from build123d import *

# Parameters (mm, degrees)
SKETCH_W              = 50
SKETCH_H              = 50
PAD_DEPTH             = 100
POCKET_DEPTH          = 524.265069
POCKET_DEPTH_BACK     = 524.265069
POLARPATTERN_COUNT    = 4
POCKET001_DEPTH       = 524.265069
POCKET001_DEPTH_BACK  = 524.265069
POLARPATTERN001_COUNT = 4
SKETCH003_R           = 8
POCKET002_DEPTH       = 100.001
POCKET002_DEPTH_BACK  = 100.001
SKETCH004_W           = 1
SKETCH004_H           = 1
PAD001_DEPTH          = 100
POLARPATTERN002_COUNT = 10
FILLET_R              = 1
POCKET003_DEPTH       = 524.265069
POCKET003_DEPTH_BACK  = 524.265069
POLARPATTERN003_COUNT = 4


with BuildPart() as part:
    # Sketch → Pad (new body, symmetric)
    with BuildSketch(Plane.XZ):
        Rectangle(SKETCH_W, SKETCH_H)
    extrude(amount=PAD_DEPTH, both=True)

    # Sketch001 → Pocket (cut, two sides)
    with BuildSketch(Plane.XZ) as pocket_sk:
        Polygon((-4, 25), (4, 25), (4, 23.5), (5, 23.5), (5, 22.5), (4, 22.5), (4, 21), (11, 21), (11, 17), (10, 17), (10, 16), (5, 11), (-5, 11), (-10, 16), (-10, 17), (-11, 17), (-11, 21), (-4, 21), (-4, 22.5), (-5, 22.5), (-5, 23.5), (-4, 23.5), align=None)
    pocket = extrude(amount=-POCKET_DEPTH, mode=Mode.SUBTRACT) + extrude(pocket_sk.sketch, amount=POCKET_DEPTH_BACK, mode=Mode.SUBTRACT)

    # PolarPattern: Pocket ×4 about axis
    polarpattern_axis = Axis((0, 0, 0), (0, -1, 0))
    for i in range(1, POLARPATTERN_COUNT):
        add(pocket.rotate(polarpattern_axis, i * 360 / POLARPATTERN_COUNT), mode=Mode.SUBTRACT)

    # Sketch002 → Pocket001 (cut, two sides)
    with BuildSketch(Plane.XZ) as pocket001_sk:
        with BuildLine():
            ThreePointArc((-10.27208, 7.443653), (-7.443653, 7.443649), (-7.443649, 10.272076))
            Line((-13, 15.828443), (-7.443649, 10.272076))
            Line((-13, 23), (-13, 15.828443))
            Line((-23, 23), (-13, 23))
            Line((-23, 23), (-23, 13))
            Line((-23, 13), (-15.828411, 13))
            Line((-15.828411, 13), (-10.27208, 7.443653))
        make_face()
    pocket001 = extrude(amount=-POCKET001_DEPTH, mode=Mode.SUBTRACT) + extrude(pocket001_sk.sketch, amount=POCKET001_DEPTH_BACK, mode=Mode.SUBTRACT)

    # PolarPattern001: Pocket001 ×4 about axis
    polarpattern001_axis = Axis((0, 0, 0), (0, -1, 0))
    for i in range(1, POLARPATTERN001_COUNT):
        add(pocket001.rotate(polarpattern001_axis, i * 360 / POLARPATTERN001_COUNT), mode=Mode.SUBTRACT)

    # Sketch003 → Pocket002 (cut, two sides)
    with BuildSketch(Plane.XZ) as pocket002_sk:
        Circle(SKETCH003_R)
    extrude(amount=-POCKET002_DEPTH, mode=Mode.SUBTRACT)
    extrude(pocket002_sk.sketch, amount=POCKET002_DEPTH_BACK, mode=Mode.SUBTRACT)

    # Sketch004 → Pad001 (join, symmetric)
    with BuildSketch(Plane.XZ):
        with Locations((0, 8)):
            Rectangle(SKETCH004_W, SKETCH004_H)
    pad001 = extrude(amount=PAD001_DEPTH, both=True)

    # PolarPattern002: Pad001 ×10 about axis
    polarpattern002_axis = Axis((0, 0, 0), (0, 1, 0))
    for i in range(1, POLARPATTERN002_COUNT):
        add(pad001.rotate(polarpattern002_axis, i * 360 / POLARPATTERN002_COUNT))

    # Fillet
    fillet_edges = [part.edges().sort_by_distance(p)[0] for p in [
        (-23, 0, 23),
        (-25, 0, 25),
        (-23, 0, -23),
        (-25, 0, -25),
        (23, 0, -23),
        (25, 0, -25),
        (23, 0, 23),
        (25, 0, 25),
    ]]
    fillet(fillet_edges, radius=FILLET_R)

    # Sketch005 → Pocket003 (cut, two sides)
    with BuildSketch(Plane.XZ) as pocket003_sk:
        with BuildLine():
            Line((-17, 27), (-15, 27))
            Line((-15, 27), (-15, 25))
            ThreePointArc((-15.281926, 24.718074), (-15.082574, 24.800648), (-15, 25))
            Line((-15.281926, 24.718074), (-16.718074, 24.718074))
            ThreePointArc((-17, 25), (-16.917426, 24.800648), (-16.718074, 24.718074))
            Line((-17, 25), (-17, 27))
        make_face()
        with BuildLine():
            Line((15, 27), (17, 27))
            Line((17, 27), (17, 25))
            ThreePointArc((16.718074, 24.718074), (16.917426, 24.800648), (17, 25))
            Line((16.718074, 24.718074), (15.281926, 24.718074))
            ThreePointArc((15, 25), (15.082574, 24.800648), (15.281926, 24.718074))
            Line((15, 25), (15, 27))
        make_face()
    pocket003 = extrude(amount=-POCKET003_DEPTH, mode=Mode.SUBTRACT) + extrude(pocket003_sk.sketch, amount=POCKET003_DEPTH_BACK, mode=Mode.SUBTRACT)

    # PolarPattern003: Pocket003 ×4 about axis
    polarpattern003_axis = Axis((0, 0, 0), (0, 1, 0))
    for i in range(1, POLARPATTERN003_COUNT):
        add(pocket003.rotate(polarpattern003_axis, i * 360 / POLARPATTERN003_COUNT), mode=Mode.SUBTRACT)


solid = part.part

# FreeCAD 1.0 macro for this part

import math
import FreeCAD as App
import Part
import Sketcher


def edges_at(feature, points):
    """Names of the edges that pass closest to the given points."""
    edges = feature.Shape.Edges
    near = lambda p: min(range(len(edges)), key=lambda i: edges[i].distToShape(Part.Vertex(*p))[0])
    return sorted({f"Edge{near(p) + 1}" for p in points})

doc = App.newDocument("Part")
body = doc.addObject("PartDesign::Body", "Body")

# Sketch on XZ plane
sketch1 = body.newObject("Sketcher::SketchObject", "Sketch")
sketch1.AttachmentSupport = (doc.getObject("XZ_Plane"), [""])
sketch1.MapMode = "FlatFace"
sketch1.addGeometry([
    Part.LineSegment(App.Vector(-25, 25, 0), App.Vector(-25, -25, 0)),
    Part.LineSegment(App.Vector(-25, -25, 0), App.Vector(25, -25, 0)),
    Part.LineSegment(App.Vector(25, -25, 0), App.Vector(25, 25, 0)),
    Part.LineSegment(App.Vector(25, 25, 0), App.Vector(-25, 25, 0)),
], False)
sketch1.addConstraint([
    Sketcher.Constraint("Coincident", 0, 2, 1, 1),
    Sketcher.Constraint("Coincident", 1, 2, 2, 1),
    Sketcher.Constraint("Coincident", 2, 2, 3, 1),
    Sketcher.Constraint("Coincident", 3, 2, 0, 1),
    Sketcher.Constraint("Vertical", 0),
    Sketcher.Constraint("Horizontal", 1),
    Sketcher.Constraint("Vertical", 2),
    Sketcher.Constraint("Horizontal", 3),
    Sketcher.Constraint("Symmetric", 0, 2, 2, 2, -1, 1),
    Sketcher.Constraint("Equal", 3, 0),
    Sketcher.Constraint("DistanceX", 1, 1, 1, 2, 50.0),
])
pad1 = body.newObject("PartDesign::Pad", "Pad")
pad1.Profile = sketch1
pad1.Length = 200
pad1.Midplane = True

# Sketch on XZ plane
sketch2 = body.newObject("Sketcher::SketchObject", "Sketch001")
sketch2.AttachmentSupport = (doc.getObject("XZ_Plane"), [""])
sketch2.MapMode = "FlatFace"
sketch2.addGeometry([
    Part.LineSegment(App.Vector(4, 25, 0), App.Vector(-4, 25, 0)),  # 0
    Part.LineSegment(App.Vector(-4, 25, 0), App.Vector(-4, 23.5, 0)),  # 1
    Part.LineSegment(App.Vector(-4, 23.5, 0), App.Vector(-5, 23.5, 0)),  # 2
    Part.LineSegment(App.Vector(-5, 23.5, 0), App.Vector(-5, 22.5, 0)),  # 3
    Part.LineSegment(App.Vector(-5, 22.5, 0), App.Vector(-4, 22.5, 0)),  # 4
    Part.LineSegment(App.Vector(-4, 22.5, 0), App.Vector(-4, 21, 0)),  # 5
    Part.LineSegment(App.Vector(-4, 21, 0), App.Vector(-11, 21, 0)),  # 6
    Part.LineSegment(App.Vector(-11, 21, 0), App.Vector(-11, 17, 0)),  # 7
    Part.LineSegment(App.Vector(-11, 17, 0), App.Vector(-10, 17, 0)),  # 8
    Part.LineSegment(App.Vector(-10, 17, 0), App.Vector(-10, 16, 0)),  # 9
    Part.LineSegment(App.Vector(-10, 16, 0), App.Vector(-5, 11, 0)),  # 10
    Part.LineSegment(App.Vector(-5, 11, 0), App.Vector(5, 11, 0)),  # 11
    Part.LineSegment(App.Vector(5, 11, 0), App.Vector(10, 16, 0)),  # 12
    Part.LineSegment(App.Vector(10, 16, 0), App.Vector(10, 17, 0)),  # 13
    Part.LineSegment(App.Vector(10, 17, 0), App.Vector(11, 17, 0)),  # 14
    Part.LineSegment(App.Vector(11, 17, 0), App.Vector(11, 21, 0)),  # 15
    Part.LineSegment(App.Vector(11, 21, 0), App.Vector(4, 21, 0)),  # 16
    Part.LineSegment(App.Vector(4, 21, 0), App.Vector(4, 22.5, 0)),  # 17
    Part.LineSegment(App.Vector(4, 22.5, 0), App.Vector(5, 22.5, 0)),  # 18
    Part.LineSegment(App.Vector(5, 22.5, 0), App.Vector(5, 23.5, 0)),  # 19
    Part.LineSegment(App.Vector(5, 23.5, 0), App.Vector(4, 23.5, 0)),  # 20
    Part.LineSegment(App.Vector(4, 23.5, 0), App.Vector(4, 25, 0)),  # 21
], False)
sketch2.addConstraint([
    Sketcher.Constraint("Coincident", 0, 2, 1, 1),
    Sketcher.Constraint("Coincident", 1, 2, 2, 1),
    Sketcher.Constraint("Coincident", 2, 2, 3, 1),
    Sketcher.Constraint("Coincident", 3, 2, 4, 1),
    Sketcher.Constraint("Coincident", 4, 2, 5, 1),
    Sketcher.Constraint("Coincident", 5, 2, 6, 1),
    Sketcher.Constraint("Coincident", 6, 2, 7, 1),
    Sketcher.Constraint("Coincident", 7, 2, 8, 1),
    Sketcher.Constraint("Coincident", 8, 2, 9, 1),
    Sketcher.Constraint("Coincident", 9, 2, 10, 1),
    Sketcher.Constraint("Coincident", 10, 2, 11, 1),
    Sketcher.Constraint("Coincident", 11, 2, 12, 1),
    Sketcher.Constraint("Coincident", 12, 2, 13, 1),
    Sketcher.Constraint("Coincident", 13, 2, 14, 1),
    Sketcher.Constraint("Coincident", 14, 2, 15, 1),
    Sketcher.Constraint("Coincident", 15, 2, 16, 1),
    Sketcher.Constraint("Coincident", 16, 2, 17, 1),
    Sketcher.Constraint("Coincident", 17, 2, 18, 1),
    Sketcher.Constraint("Coincident", 18, 2, 19, 1),
    Sketcher.Constraint("Coincident", 19, 2, 20, 1),
    Sketcher.Constraint("Coincident", 20, 2, 21, 1),
    Sketcher.Constraint("Coincident", 21, 2, 0, 1),
    Sketcher.Constraint("Horizontal", 0),
    Sketcher.Constraint("Vertical", 1),
    Sketcher.Constraint("Horizontal", 2),
    Sketcher.Constraint("Vertical", 3),
    Sketcher.Constraint("Horizontal", 4),
    Sketcher.Constraint("Vertical", 5),
    Sketcher.Constraint("Horizontal", 6),
    Sketcher.Constraint("Vertical", 7),
    Sketcher.Constraint("Horizontal", 8),
    Sketcher.Constraint("Vertical", 9),
    Sketcher.Constraint("Horizontal", 11),
    Sketcher.Constraint("Vertical", 13),
    Sketcher.Constraint("Horizontal", 14),
    Sketcher.Constraint("Vertical", 15),
    Sketcher.Constraint("Horizontal", 16),
    Sketcher.Constraint("Vertical", 17),
    Sketcher.Constraint("Horizontal", 18),
    Sketcher.Constraint("Vertical", 19),
    Sketcher.Constraint("Horizontal", 20),
    Sketcher.Constraint("Vertical", 21),
    Sketcher.Constraint("Symmetric", 9, 2, 12, 2, -2),
    Sketcher.Constraint("Symmetric", 7, 2, 14, 2, -2),
    Sketcher.Constraint("Symmetric", 5, 2, 16, 2, -2),
    Sketcher.Constraint("Symmetric", 3, 2, 18, 2, -2),
    Sketcher.Constraint("Symmetric", 1, 2, 20, 2, -2),
    Sketcher.Constraint("Perpendicular", 10, 12),
    Sketcher.Constraint("Vertical", 1, 2, 4, 2),
    Sketcher.Constraint("Vertical", 3, 2, 10, 2),
    Sketcher.Constraint("Vertical", 11, 2, 18, 2),
    Sketcher.Constraint("Equal", 4, 8),
    Sketcher.Constraint("Equal", 20, 3),
    Sketcher.Constraint("Equal", 1, 5),
    Sketcher.Constraint("Equal", 3, 9),
    Sketcher.Constraint("DistanceX", 0, 2, 0, 1, 8.0),
    Sketcher.Constraint("DistanceX", 2, 2, 2, 1, 1.0),
    Sketcher.Constraint("DistanceX", 6, 2, 6, 1, 7.0),
    Sketcher.Constraint("DistanceY", 7, 2, 7, 1, 4.0),
    Sketcher.Constraint("DistanceY", 1, 2, 1, 1, 1.5),
    Sketcher.Constraint("DistanceY", -1, 1, 0, 2, 25.0),
])
pocket1 = body.newObject("PartDesign::Pocket", "Pocket")
pocket1.Profile = sketch2
pocket1.Type = "ThroughAll"
pocket1.Midplane = True
doc.recompute()

polarpattern = body.newObject("PartDesign::PolarPattern", "PolarPattern")
polarpattern.Originals = [pocket1]
polarpattern.Axis = (doc.getObject("Y_Axis"), [""])
polarpattern.Angle = 360
polarpattern.Occurrences = 4
body.Tip = polarpattern

# Sketch on XZ plane
sketch3 = body.newObject("Sketcher::SketchObject", "Sketch002")
sketch3.AttachmentSupport = (doc.getObject("XZ_Plane"), [""])
sketch3.MapMode = "FlatFace"
sketch3.addGeometry([
    Part.ArcOfCircle(Part.Circle(App.Vector(-8.9, 8.9, 0), App.Vector(0, 0, 1), 2), math.radians(-135), math.radians(45)),  # 0
    Part.LineSegment(App.Vector(-7.4, 10.3, 0), App.Vector(-13, 15.8, 0)),  # 1
    Part.LineSegment(App.Vector(-13, 15.8, 0), App.Vector(-13, 23, 0)),  # 2
    Part.LineSegment(App.Vector(-13, 23, 0), App.Vector(-23, 23, 0)),  # 3
    Part.LineSegment(App.Vector(-23, 23, 0), App.Vector(-23, 13, 0)),  # 4
    Part.LineSegment(App.Vector(-23, 13, 0), App.Vector(-15.8, 13, 0)),  # 5
    Part.LineSegment(App.Vector(-15.8, 13, 0), App.Vector(-10.3, 7.4, 0)),  # 6
], False)
sketch3.addConstraint([
    Sketcher.Constraint("Tangent", 0, 2, 1, 1),
    Sketcher.Constraint("Coincident", 1, 2, 2, 1),
    Sketcher.Constraint("Coincident", 2, 2, 3, 1),
    Sketcher.Constraint("Coincident", 3, 2, 4, 1),
    Sketcher.Constraint("Coincident", 4, 2, 5, 1),
    Sketcher.Constraint("Coincident", 5, 2, 6, 1),
    Sketcher.Constraint("Tangent", 6, 2, 0, 1),
    Sketcher.Constraint("Vertical", 2),
    Sketcher.Constraint("Horizontal", 3),
    Sketcher.Constraint("Vertical", 4),
    Sketcher.Constraint("Horizontal", 5),
    Sketcher.Constraint("Parallel", 1, 6),
    Sketcher.Constraint("Equal", 3, 4),
    Sketcher.Constraint("Radius", 0, 2.0),
    Sketcher.Constraint("DistanceX", 3, 2, 3, 1, 10.0),
    Sketcher.Constraint("DistanceX", 1, 2, -1, 1, 13.0),
    Sketcher.Constraint("DistanceY", -1, 1, 2, 2, 23.0),
    Sketcher.Constraint("DistanceX", 5, 1, 5, 2, 7.171589),
    Sketcher.Constraint("Distance", 1, 7.857878),
    Sketcher.Constraint("Distance", 6, 7.85785),
])
pocket2 = body.newObject("PartDesign::Pocket", "Pocket001")
pocket2.Profile = sketch3
pocket2.Type = "ThroughAll"
pocket2.Midplane = True
doc.recompute()

polarpattern2 = body.newObject("PartDesign::PolarPattern", "PolarPattern001")
polarpattern2.Originals = [pocket2]
polarpattern2.Axis = (doc.getObject("Y_Axis"), [""])
polarpattern2.Angle = 360
polarpattern2.Occurrences = 4
body.Tip = polarpattern2

# Sketch on XZ plane
sketch4 = body.newObject("Sketcher::SketchObject", "Sketch003")
sketch4.AttachmentSupport = (doc.getObject("XZ_Plane"), [""])
sketch4.MapMode = "FlatFace"
sketch4.addGeometry(Part.Circle(App.Vector(0, 0, 0), App.Vector(0, 0, 1), 8), False)
sketch4.addConstraint([
    Sketcher.Constraint("Coincident", 0, 3, -1, 1),
    Sketcher.Constraint("Diameter", 0, 16.0),
])
pocket3 = body.newObject("PartDesign::Pocket", "Pocket002")
pocket3.Profile = sketch4
pocket3.Type = "ThroughAll"
pocket3.Midplane = True

# Sketch on XZ plane
sketch5 = body.newObject("Sketcher::SketchObject", "Sketch004")
sketch5.AttachmentSupport = (doc.getObject("XZ_Plane"), [""])
sketch5.MapMode = "FlatFace"
sketch5.addGeometry([
    Part.LineSegment(App.Vector(-0.5, 8.5, 0), App.Vector(-0.5, 7.5, 0)),
    Part.LineSegment(App.Vector(-0.5, 7.5, 0), App.Vector(0.5, 7.5, 0)),
    Part.LineSegment(App.Vector(0.5, 7.5, 0), App.Vector(0.5, 8.5, 0)),
    Part.LineSegment(App.Vector(0.5, 8.5, 0), App.Vector(-0.5, 8.5, 0)),
], False)
sketch5.addConstraint([
    Sketcher.Constraint("Coincident", 0, 2, 1, 1),
    Sketcher.Constraint("Coincident", 1, 2, 2, 1),
    Sketcher.Constraint("Coincident", 2, 2, 3, 1),
    Sketcher.Constraint("Coincident", 3, 2, 0, 1),
    Sketcher.Constraint("Vertical", 0),
    Sketcher.Constraint("Horizontal", 1),
    Sketcher.Constraint("Vertical", 2),
    Sketcher.Constraint("Horizontal", 3),
    Sketcher.Constraint("Equal", 3, 0),
    Sketcher.Constraint("DistanceX", 1, 1, 1, 2, 1.0),
    Sketcher.Constraint("DistanceX", 0, 2, -1, 1, 0.5),
    Sketcher.Constraint("DistanceY", -1, 1, 0, 2, 7.5),
])
pad2 = body.newObject("PartDesign::Pad", "Pad001")
pad2.Profile = sketch5
pad2.Length = 200
pad2.Midplane = True
doc.recompute()

polarpattern3 = body.newObject("PartDesign::PolarPattern", "PolarPattern002")
polarpattern3.Originals = [pad2]
polarpattern3.Axis = (doc.getObject("Y_Axis"), [""])
polarpattern3.Angle = 360
polarpattern3.Occurrences = 10
body.Tip = polarpattern3
doc.recompute()

fillet = body.newObject("PartDesign::Fillet", "Fillet")
fillet.Base = (polarpattern3, edges_at(polarpattern3, [
    (-23, 0, 23),
    (-25, 0, 25),
    (-23, 0, -23),
    (-25, 0, -25),
    (23, 0, -23),
    (25, 0, -25),
    (23, 0, 23),
    (25, 0, 25),
]))
fillet.Radius = 1

# Sketch on XZ plane
sketch6 = body.newObject("Sketcher::SketchObject", "Sketch005")
sketch6.AttachmentSupport = (doc.getObject("XZ_Plane"), [""])
sketch6.MapMode = "FlatFace"
sketch6.addGeometry([
    Part.LineSegment(App.Vector(-15, 27, 0), App.Vector(-17, 27, 0)),  # 0
    Part.LineSegment(App.Vector(-17, 27, 0), App.Vector(-17, 25, 0)),  # 1
    Part.ArcOfCircle(Part.Circle(App.Vector(-16.72, 25, 0), App.Vector(0, 0, 1), 0.28), math.radians(180), math.radians(270)),  # 2
    Part.LineSegment(App.Vector(-16.72, 24.72, 0), App.Vector(-15.28, 24.72, 0)),  # 3
    Part.ArcOfCircle(Part.Circle(App.Vector(-15.28, 25, 0), App.Vector(0, 0, 1), 0.28), math.radians(-90), math.radians(0)),  # 4
    Part.LineSegment(App.Vector(-15, 25, 0), App.Vector(-15, 27, 0)),  # 5
    Part.LineSegment(App.Vector(17, 27, 0), App.Vector(15, 27, 0)),  # 6
    Part.LineSegment(App.Vector(15, 27, 0), App.Vector(15, 25, 0)),  # 7
    Part.ArcOfCircle(Part.Circle(App.Vector(15.28, 25, 0), App.Vector(0, 0, 1), 0.28), math.radians(180), math.radians(270)),  # 8
    Part.LineSegment(App.Vector(15.28, 24.72, 0), App.Vector(16.72, 24.72, 0)),  # 9
    Part.ArcOfCircle(Part.Circle(App.Vector(16.72, 25, 0), App.Vector(0, 0, 1), 0.28), math.radians(-90), math.radians(0)),  # 10
    Part.LineSegment(App.Vector(17, 25, 0), App.Vector(17, 27, 0)),  # 11
], False)
sketch6.addConstraint([
    Sketcher.Constraint("Coincident", 0, 2, 1, 1),
    Sketcher.Constraint("Coincident", 1, 2, 2, 1),
    Sketcher.Constraint("Coincident", 2, 2, 3, 1),
    Sketcher.Constraint("Coincident", 3, 2, 4, 1),
    Sketcher.Constraint("Coincident", 4, 2, 5, 1),
    Sketcher.Constraint("Coincident", 5, 2, 0, 1),
    Sketcher.Constraint("Coincident", 6, 2, 7, 1),
    Sketcher.Constraint("Coincident", 7, 2, 8, 1),
    Sketcher.Constraint("Coincident", 8, 2, 9, 1),
    Sketcher.Constraint("Coincident", 9, 2, 10, 1),
    Sketcher.Constraint("Coincident", 10, 2, 11, 1),
    Sketcher.Constraint("Coincident", 11, 2, 6, 1),
    Sketcher.Constraint("Horizontal", 0),
    Sketcher.Constraint("Vertical", 1),
    Sketcher.Constraint("Horizontal", 3),
    Sketcher.Constraint("Vertical", 5),
    Sketcher.Constraint("Horizontal", 6),
    Sketcher.Constraint("Vertical", 7),
    Sketcher.Constraint("Horizontal", 9),
    Sketcher.Constraint("Vertical", 11),
    Sketcher.Constraint("Equal", 2, 4),
    Sketcher.Constraint("Equal", 4, 8),
    Sketcher.Constraint("Equal", 8, 10),
    Sketcher.Constraint("Symmetric", 4, 3, 8, 3, -2),
    Sketcher.Constraint("Symmetric", 1, 2, 10, 2, -2),
    Sketcher.Constraint("Horizontal", 10, 3, 1, 2),
    Sketcher.Constraint("Horizontal", 1, 2, 4, 2),
    Sketcher.Constraint("Horizontal", 5, 2, 6, 2),
    Sketcher.Constraint("Horizontal", 4, 2, 7, 2),
    Sketcher.Constraint("Vertical", 4, 3, 3, 2),
    Sketcher.Constraint("Vertical", 10, 3, 9, 2),
    Sketcher.Constraint("Equal", 3, 9),
    Sketcher.Constraint("Equal", 6, 1),
    Sketcher.Constraint("DistanceX", 0, 2, 0, 1, 2.0),
    Sketcher.Constraint("DistanceY", -1, 1, 2, 3, 24.999999),
    Sketcher.Constraint("DistanceX", 0, 2, -1, 1, 17.0),
    Sketcher.Constraint("DistanceX", 2, 2, 8, 3, 31.999999),
    Sketcher.Constraint("Radius", 2, 0.281925),
])
pocket4 = body.newObject("PartDesign::Pocket", "Pocket003")
pocket4.Profile = sketch6
pocket4.Type = "ThroughAll"
pocket4.Midplane = True
doc.recompute()

polarpattern4 = body.newObject("PartDesign::PolarPattern", "PolarPattern003")
polarpattern4.Originals = [pocket4]
polarpattern4.Axis = (doc.getObject("Y_Axis"), [""])
polarpattern4.Angle = 360
polarpattern4.Occurrences = 4
body.Tip = polarpattern4

doc.recompute()
